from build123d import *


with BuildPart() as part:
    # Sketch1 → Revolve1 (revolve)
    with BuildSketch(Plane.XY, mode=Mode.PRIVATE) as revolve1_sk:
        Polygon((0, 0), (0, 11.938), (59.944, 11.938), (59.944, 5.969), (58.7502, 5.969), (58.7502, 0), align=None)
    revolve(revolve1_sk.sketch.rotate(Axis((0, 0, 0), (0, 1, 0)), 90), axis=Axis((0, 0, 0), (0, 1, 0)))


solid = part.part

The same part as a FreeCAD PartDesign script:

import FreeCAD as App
import Part
import Sketcher
Q = App.Units.Quantity


def add_polygon(sketch, points):
    """Adds a closed chain of lines whose ends are joined by coincident constraints."""
    first, n = sketch.GeometryCount, len(points)
    for a, b in zip(points, points[1:] + points[:1]):
        sketch.addGeometry(Part.LineSegment(App.Vector(*a, 0), App.Vector(*b, 0)), False)
    for i in range(n):
        sketch.addConstraint(Sketcher.Constraint("Coincident", first + i, 2, first + (i + 1) % n, 1))

doc = App.newDocument("Part")
body = doc.addObject("PartDesign::Body", "Body")

# Sketch on XY plane
sketch1 = body.newObject("Sketcher::SketchObject", "Sketch")
sketch1.AttachmentSupport = (doc.getObject("XY_Plane"), [""])
sketch1.MapMode = "FlatFace"
add_polygon(sketch1, [(0, 11.938), (0, 0), (58.7502, 0), (58.7502, 5.969), (59.944, 5.969), (59.944, 11.938)])  # lines 0-5
sketch1.addConstraint(Sketcher.Constraint("Vertical", 0))
sketch1.addConstraint(Sketcher.Constraint("Horizontal", 1))
sketch1.addConstraint(Sketcher.Constraint("Vertical", 2))
sketch1.addConstraint(Sketcher.Constraint("Horizontal", 3))
sketch1.addConstraint(Sketcher.Constraint("Vertical", 4))
sketch1.addConstraint(Sketcher.Constraint("Horizontal", 5))
sketch1.addConstraint(Sketcher.Constraint("Coincident", 0, 2, -1, 1))
sketch1.addConstraint(Sketcher.Constraint("Equal", 2, 4))
sketch1.addConstraint(Sketcher.Constraint("DistanceX", 5, 2, 5, 1, Q("2.36 in")))
sketch1.addConstraint(Sketcher.Constraint("DistanceY", 0, 2, 0, 1, Q("0.47 in")))
sketch1.addConstraint(Sketcher.Constraint("DistanceX", 1, 1, 1, 2, Q("2.313 in")))
revolution = body.newObject("PartDesign::Revolution", "Revolution")
revolution.Profile = sketch1
revolution.ReferenceAxis = (sketch1, ["V_Axis"])
revolution.Angle = 360

doc.recompute()
